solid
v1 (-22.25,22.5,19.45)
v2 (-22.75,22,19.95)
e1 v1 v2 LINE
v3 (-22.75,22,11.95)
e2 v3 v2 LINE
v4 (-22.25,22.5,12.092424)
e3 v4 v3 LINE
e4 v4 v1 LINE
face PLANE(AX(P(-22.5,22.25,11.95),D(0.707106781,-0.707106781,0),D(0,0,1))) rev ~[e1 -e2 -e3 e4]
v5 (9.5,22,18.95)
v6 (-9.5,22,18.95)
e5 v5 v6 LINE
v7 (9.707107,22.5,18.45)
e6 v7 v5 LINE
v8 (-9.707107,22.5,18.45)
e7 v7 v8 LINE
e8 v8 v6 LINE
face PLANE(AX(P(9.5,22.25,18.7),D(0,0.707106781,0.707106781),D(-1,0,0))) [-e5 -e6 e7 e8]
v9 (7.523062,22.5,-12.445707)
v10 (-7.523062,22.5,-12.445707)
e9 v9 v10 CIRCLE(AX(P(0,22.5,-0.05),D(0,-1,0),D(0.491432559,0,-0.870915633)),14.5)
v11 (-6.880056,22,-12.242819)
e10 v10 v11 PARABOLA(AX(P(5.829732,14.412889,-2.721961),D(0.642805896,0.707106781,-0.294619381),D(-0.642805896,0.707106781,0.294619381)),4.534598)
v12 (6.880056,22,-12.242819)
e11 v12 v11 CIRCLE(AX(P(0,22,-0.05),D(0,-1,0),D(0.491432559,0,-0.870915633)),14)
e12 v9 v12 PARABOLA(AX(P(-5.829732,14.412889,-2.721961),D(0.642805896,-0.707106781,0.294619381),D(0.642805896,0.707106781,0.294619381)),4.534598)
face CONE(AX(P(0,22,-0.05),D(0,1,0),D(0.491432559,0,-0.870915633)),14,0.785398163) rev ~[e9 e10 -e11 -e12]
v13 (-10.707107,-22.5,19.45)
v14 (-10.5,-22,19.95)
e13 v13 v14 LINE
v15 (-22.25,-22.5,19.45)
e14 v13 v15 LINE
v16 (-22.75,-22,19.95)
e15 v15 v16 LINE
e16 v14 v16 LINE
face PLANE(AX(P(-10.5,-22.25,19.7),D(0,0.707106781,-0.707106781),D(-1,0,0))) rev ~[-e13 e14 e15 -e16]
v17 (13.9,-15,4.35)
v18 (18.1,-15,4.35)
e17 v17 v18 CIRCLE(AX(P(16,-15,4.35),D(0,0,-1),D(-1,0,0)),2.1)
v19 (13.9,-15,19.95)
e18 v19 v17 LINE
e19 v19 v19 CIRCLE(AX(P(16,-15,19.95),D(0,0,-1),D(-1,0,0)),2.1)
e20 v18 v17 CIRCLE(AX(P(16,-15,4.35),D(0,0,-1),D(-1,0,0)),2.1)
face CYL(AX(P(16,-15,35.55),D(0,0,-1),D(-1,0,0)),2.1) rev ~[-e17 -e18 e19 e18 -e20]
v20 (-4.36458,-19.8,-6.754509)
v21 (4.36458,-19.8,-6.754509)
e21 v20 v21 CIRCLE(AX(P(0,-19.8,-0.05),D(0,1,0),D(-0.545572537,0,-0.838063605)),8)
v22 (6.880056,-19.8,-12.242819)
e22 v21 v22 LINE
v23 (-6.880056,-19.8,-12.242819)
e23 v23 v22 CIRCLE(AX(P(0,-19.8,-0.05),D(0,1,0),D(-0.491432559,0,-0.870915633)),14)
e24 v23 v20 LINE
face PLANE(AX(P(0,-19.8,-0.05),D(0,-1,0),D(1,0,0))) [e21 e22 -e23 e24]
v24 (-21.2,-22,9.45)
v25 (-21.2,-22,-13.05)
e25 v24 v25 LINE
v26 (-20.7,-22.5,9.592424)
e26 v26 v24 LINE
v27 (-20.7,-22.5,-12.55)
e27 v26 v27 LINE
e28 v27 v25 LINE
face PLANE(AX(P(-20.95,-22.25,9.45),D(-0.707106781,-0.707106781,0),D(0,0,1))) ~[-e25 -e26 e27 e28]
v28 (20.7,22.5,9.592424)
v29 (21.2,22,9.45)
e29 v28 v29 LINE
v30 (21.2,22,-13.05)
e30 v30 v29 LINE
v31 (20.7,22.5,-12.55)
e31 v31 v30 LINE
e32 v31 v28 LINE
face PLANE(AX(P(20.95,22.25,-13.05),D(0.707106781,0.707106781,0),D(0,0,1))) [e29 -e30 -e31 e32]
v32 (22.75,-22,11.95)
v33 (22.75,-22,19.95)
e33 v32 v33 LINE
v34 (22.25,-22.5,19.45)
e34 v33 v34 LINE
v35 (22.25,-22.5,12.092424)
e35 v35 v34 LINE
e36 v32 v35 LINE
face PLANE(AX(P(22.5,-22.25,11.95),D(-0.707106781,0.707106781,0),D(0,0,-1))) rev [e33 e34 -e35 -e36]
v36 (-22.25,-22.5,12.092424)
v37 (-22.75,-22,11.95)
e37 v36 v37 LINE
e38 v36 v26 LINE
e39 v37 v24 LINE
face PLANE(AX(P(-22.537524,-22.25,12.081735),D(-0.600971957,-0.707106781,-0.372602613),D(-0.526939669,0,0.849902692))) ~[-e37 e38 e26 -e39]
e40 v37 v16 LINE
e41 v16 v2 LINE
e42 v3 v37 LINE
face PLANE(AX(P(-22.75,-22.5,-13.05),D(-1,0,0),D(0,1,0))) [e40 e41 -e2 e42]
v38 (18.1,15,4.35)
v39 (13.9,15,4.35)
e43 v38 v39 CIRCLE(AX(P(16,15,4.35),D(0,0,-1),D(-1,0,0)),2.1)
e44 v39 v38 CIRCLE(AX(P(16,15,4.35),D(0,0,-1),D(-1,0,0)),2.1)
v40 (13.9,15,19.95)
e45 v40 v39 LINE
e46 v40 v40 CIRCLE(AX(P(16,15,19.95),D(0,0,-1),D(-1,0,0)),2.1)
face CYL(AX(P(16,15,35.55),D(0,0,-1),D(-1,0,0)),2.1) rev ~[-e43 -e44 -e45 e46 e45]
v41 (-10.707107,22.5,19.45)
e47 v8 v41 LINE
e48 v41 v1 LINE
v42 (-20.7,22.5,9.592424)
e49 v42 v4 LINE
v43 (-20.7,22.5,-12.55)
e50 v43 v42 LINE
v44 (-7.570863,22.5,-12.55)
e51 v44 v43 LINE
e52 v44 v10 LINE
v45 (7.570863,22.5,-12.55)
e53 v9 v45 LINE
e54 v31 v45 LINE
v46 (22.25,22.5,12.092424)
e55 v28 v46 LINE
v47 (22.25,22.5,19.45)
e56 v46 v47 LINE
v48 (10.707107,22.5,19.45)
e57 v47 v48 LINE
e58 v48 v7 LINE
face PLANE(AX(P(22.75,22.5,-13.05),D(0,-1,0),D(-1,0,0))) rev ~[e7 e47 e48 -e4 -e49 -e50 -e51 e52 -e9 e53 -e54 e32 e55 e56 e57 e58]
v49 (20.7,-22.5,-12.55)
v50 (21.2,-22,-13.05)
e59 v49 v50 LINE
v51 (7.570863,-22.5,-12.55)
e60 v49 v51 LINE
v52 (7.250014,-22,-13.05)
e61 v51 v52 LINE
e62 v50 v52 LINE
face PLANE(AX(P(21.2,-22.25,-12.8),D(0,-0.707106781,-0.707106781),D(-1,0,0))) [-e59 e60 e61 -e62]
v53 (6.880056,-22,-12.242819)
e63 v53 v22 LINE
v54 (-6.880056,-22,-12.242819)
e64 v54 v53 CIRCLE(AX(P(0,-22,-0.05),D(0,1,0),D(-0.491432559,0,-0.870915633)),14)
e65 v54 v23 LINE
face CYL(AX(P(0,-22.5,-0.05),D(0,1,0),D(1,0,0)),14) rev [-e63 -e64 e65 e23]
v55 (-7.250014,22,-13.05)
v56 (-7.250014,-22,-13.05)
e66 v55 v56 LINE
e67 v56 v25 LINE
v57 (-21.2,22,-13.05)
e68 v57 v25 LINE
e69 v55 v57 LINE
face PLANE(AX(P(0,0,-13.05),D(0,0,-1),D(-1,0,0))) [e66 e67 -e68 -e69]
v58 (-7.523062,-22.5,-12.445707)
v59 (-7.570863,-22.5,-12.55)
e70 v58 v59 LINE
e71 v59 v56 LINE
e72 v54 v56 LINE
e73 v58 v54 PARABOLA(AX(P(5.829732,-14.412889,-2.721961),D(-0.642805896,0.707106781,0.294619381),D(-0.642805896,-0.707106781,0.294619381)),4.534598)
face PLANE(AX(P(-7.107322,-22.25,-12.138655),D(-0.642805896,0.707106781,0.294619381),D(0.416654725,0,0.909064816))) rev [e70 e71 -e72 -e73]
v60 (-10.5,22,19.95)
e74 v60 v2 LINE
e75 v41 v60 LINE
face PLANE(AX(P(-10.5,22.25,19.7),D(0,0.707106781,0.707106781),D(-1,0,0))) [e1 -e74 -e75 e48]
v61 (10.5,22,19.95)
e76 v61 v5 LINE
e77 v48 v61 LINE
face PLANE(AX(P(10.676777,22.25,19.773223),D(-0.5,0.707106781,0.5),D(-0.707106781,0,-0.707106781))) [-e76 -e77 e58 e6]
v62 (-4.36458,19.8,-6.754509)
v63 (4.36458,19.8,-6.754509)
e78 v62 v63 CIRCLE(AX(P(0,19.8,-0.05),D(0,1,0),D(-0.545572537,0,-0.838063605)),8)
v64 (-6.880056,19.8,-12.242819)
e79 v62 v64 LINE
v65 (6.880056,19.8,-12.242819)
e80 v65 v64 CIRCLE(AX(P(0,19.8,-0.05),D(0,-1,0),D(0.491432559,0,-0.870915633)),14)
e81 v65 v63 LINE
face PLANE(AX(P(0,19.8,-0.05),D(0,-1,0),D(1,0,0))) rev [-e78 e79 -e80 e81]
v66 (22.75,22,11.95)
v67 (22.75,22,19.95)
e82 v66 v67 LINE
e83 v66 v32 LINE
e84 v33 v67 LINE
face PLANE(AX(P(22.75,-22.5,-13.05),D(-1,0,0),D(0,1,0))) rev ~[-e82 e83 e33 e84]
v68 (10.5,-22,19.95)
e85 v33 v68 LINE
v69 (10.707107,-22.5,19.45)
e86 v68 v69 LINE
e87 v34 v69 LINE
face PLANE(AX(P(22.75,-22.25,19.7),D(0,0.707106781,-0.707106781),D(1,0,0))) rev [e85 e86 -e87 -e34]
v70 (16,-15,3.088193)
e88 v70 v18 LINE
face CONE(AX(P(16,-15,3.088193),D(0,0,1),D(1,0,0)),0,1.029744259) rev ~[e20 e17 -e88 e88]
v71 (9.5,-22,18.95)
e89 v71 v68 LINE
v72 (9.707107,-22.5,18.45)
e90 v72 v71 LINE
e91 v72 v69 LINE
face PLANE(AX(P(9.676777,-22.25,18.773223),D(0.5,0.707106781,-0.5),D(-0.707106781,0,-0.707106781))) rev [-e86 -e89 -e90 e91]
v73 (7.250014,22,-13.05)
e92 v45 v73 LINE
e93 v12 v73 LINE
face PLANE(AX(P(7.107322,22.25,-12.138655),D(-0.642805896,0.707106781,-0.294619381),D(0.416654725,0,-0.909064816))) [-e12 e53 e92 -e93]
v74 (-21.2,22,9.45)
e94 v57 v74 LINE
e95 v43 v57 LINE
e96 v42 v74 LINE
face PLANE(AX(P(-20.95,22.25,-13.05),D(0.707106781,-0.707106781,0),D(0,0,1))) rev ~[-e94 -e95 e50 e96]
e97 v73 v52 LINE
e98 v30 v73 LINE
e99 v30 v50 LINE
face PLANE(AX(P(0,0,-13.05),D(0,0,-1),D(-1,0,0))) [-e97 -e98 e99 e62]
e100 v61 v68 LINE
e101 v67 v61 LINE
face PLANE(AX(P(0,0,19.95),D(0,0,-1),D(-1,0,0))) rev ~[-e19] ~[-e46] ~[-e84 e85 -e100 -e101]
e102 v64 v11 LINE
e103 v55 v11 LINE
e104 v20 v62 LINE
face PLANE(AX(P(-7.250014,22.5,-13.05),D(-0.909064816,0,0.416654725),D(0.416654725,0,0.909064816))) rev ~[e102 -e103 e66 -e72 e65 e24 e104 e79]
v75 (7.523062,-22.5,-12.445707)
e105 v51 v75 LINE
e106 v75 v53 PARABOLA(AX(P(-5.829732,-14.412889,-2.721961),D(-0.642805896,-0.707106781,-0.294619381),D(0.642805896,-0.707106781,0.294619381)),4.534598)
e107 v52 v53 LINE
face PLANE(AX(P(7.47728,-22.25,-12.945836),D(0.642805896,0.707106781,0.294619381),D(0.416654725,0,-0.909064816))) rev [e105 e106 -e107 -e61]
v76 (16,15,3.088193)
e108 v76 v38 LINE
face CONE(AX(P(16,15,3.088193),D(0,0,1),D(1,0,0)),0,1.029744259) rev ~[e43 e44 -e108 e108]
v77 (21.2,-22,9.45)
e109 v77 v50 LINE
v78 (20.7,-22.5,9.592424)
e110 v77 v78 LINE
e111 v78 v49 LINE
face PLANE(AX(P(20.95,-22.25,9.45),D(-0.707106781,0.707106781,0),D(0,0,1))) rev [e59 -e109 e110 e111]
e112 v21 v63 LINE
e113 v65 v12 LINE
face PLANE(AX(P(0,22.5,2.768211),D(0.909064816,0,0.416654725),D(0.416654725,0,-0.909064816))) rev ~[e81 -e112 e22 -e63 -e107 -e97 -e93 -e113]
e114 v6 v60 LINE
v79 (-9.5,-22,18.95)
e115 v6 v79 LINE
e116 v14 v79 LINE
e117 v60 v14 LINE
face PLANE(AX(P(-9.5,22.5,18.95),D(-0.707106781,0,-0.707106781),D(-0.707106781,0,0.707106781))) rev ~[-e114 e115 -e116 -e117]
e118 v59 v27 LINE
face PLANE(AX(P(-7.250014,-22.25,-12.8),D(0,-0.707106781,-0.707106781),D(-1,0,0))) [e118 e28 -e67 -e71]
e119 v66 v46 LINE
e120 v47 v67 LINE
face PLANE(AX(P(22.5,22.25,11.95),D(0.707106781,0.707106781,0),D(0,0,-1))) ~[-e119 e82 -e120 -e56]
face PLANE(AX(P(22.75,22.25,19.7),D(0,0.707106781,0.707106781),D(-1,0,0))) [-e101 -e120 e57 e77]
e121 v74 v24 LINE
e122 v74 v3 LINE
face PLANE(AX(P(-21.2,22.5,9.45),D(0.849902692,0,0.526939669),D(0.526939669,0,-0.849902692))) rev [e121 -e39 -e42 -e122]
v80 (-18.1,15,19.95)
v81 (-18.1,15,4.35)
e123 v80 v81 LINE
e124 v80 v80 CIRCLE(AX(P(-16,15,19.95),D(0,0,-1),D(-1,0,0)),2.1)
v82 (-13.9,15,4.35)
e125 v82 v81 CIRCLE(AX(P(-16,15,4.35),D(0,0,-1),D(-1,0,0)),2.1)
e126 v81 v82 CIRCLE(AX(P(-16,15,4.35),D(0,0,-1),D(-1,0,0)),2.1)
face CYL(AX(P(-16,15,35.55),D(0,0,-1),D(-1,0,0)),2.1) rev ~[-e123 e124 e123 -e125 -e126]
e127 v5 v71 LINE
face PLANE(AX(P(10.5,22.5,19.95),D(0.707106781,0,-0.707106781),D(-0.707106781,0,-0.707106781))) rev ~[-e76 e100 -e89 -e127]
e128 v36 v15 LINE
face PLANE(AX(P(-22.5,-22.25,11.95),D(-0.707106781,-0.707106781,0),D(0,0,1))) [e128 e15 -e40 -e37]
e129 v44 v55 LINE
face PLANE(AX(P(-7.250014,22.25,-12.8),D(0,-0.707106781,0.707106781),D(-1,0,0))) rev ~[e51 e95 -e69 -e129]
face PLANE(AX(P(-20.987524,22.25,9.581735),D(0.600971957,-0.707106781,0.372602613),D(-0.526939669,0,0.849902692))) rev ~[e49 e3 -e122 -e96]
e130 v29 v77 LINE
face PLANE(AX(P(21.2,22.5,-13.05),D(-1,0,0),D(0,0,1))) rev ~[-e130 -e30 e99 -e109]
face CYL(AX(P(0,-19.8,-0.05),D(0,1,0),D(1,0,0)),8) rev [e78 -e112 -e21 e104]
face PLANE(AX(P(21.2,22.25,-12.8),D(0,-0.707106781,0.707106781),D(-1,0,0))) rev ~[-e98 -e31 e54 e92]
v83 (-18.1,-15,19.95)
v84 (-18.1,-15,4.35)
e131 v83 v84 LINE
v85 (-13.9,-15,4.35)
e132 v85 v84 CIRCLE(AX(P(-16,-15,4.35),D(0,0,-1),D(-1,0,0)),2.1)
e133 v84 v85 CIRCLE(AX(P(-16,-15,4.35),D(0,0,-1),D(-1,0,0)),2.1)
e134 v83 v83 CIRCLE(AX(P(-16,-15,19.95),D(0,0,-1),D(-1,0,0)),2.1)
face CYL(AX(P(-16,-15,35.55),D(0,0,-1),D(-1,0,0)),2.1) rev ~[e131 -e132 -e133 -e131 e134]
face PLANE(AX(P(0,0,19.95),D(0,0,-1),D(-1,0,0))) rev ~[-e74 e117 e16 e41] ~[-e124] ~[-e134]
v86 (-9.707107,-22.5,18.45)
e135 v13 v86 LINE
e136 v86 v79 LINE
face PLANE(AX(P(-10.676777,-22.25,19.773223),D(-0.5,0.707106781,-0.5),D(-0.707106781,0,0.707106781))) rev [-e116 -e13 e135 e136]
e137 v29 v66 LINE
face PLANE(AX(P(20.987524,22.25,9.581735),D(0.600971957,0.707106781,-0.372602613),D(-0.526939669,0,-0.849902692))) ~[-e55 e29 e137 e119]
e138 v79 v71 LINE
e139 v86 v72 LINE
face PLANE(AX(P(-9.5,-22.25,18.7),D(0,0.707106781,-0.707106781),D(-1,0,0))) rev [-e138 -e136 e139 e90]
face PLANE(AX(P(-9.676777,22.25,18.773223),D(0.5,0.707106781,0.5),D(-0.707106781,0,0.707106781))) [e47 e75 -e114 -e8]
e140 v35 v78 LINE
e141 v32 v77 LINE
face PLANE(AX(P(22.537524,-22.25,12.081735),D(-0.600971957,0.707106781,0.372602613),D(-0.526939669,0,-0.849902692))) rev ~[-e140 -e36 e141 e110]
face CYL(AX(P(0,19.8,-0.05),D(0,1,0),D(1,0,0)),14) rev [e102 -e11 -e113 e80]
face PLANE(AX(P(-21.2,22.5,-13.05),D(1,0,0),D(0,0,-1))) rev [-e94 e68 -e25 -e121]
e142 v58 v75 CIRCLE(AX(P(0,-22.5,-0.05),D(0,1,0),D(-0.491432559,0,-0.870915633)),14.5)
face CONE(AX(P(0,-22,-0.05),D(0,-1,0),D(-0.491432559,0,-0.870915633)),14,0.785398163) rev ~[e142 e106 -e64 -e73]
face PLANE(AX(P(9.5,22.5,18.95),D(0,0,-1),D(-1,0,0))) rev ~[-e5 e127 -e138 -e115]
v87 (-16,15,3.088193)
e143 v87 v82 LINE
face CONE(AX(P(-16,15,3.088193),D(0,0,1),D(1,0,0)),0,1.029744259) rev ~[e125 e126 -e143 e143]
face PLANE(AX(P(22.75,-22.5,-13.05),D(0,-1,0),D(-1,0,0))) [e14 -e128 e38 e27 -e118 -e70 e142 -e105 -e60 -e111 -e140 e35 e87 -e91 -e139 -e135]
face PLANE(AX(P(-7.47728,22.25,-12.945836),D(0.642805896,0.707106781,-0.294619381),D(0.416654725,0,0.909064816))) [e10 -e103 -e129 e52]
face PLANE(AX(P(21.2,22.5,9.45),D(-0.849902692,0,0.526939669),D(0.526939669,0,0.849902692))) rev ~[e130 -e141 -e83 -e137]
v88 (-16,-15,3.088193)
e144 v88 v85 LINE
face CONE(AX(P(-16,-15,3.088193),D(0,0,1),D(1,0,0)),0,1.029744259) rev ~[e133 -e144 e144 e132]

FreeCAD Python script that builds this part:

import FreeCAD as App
import Part
import Sketcher

V = App.Vector
Q = App.Units.Quantity


def edges_at(feature, points):
    """Names of the edges that pass closest to the given points."""
    edges = feature.Shape.Edges
    near = lambda p: min(range(len(edges)), key=lambda i: edges[i].distToShape(Part.Vertex(*p))[0])
    return sorted({f"Edge{near(p) + 1}" for p in points})


def add_polygon(sketch, points):
    """Adds a closed chain of lines whose ends are joined by coincident constraints."""
    first, n = sketch.GeometryCount, len(points)
    for a, b in zip(points, points[1:] + points[:1]):
        sketch.addGeometry(Part.LineSegment(App.Vector(*a, 0), App.Vector(*b, 0)), False)
    for i in range(n):
        sketch.addConstraint(Sketcher.Constraint("Coincident", first + i, 2, first + (i + 1) % n, 1))

doc = App.newDocument("Part")
body = doc.addObject("PartDesign::Body", "Body")

# Sketch on XY plane
sketch1 = body.newObject("Sketcher::SketchObject", "Sketch")
sketch1.AttachmentSupport = (doc.getObject("XY_Plane"), [""])
sketch1.MapMode = "FlatFace"
sketch1.AttachmentOffset = App.Placement(V(0, 0, -13.05), App.Rotation())
add_polygon(sketch1, [(23, 22), (23, -22), (-23, -22), (-23, 22)])  # lines 0-3
sketch1.addConstraint([
    Sketcher.Constraint("Vertical", 0),
    Sketcher.Constraint("Horizontal", 1),
    Sketcher.Constraint("Vertical", 2),
    Sketcher.Constraint("Horizontal", 3),
    Sketcher.Constraint("Symmetric", 0, 2, 2, 2, -1, 1),
    Sketcher.Constraint("DistanceY", 0, 2, 0, 1, Q("45 mm")),
    Sketcher.Constraint("DistanceX", 1, 2, 1, 1, Q("45.5 mm")),
])
pad1 = body.newObject("PartDesign::Pad", "Pad")
pad1.Profile = sketch1
pad1.Length = 33

# Sketch on XZ plane
sketch2 = body.newObject("Sketcher::SketchObject", "Sketch001")
sketch2.AttachmentSupport = (doc.getObject("XZ_Plane"), [""])
sketch2.MapMode = "FlatFace"
sketch2.AttachmentOffset = App.Placement(V(0, 0, -22.5), App.Rotation())
add_polygon(sketch2, [(21.2, -13.1), (21.2, 9.4), (22.8, 11.9), (22.8, -13.1)])  # lines 0-3
sketch2.addConstraint([
    Sketcher.Constraint("Vertical", 0),
    Sketcher.Constraint("Vertical", 2),
    Sketcher.Constraint("Horizontal", 3),
    Sketcher.Constraint("DistanceY", 2, 2, 2, 1, Q("25 mm")),
    Sketcher.Constraint("DistanceY", 0, 1, 0, 2, Q("22.5 mm")),
    Sketcher.Constraint("DistanceX", 3, 2, 3, 1, Q("1.55 mm")),
    Sketcher.Constraint("DistanceX", -1, 1, 0, 2, Q("21.2 mm")),
    Sketcher.Constraint("DistanceY", -1, 1, 0, 2, Q("9.45 mm")),
])
pocket1 = body.newObject("PartDesign::Pocket", "Pocket")
pocket1.Profile = sketch2
pocket1.Type = "ThroughAll"
pocket1.Reversed = True
doc.recompute()

mirrored = body.newObject("PartDesign::Mirrored", "Mirrored")
mirrored.Originals = [pocket1]
mirrored.MirrorPlane = (doc.getObject("YZ_Plane"), [""])
body.Tip = mirrored

# Sketch on XZ plane
sketch3 = body.newObject("Sketcher::SketchObject", "Sketch002")
sketch3.AttachmentSupport = (doc.getObject("XZ_Plane"), [""])
sketch3.MapMode = "FlatFace"
sketch3.AttachmentOffset = App.Placement(V(0, 0, -22.5), App.Rotation())
add_polygon(sketch3, [(10.5, 19.9), (9.5, 18.9), (-9.5, 18.9), (-10.5, 19.9)])  # lines 0-3
sketch3.addConstraint([
    Sketcher.Constraint("Horizontal", 1),
    Sketcher.Constraint("Horizontal", 3),
    Sketcher.Constraint("Perpendicular", 0, 2),
    Sketcher.Constraint("Equal", 0, 2),
    Sketcher.Constraint("DistanceX", 1, 2, 1, 1, Q("19 mm")),
    Sketcher.Constraint("DistanceX", 3, 1, 3, 2, Q("21 mm")),
    Sketcher.Constraint("DistanceX", -1, 1, 0, 2, Q("9.5 mm")),
    Sketcher.Constraint("DistanceY", -1, 1, 0, 2, Q("18.95 mm")),
])
pocket2 = body.newObject("PartDesign::Pocket", "Pocket001")
pocket2.Profile = sketch3
pocket2.Type = "ThroughAll"
pocket2.Reversed = True

# Sketch on XZ plane
sketch4 = body.newObject("Sketcher::SketchObject", "Sketch003")
sketch4.AttachmentSupport = (doc.getObject("XZ_Plane"), [""])
sketch4.MapMode = "FlatFace"
sketch4.AttachmentOffset = App.Placement(V(0, 0, -22.5), App.Rotation())
add_polygon(sketch4, [(7, -13), (-7, -13), (0, 3)])  # lines 0-2
sketch4.addConstraint([
    Sketcher.Constraint("Horizontal", 0),
    Sketcher.Constraint("PointOnObject", 1, 2, -2),
    Sketcher.Constraint("Equal", 1, 2),
    Sketcher.Constraint("DistanceY", 0, 2, -1, 1, Q("13.05 mm")),
    Sketcher.Constraint("Distance", 1, Q("17.400532 mm")),
    Sketcher.Constraint("DistanceX", 0, 2, 0, 1, Q("14.500028 mm")),
])
pocket3 = body.newObject("PartDesign::Pocket", "Pocket002")
pocket3.Profile = sketch4
pocket3.Type = "ThroughAll"
pocket3.Reversed = True

# Sketch on XY plane
sketch5 = body.newObject("Sketcher::SketchObject", "Sketch004")
sketch5.AttachmentSupport = (doc.getObject("XY_Plane"), [""])
sketch5.MapMode = "FlatFace"
sketch5.AttachmentOffset = App.Placement(V(0, 0, -0.05), App.Rotation())
add_polygon(sketch5, [(14, 22.5), (0, 22.5), (0, -22.5), (14, -22.5), (14, -19.8), (8, -19.8), (8, 19.8), (14, 19.8)])  # lines 0-7
sketch5.addConstraint([
    Sketcher.Constraint("Horizontal", 0),
    Sketcher.Constraint("Vertical", 1),
    Sketcher.Constraint("Horizontal", 2),
    Sketcher.Constraint("Vertical", 3),
    Sketcher.Constraint("Horizontal", 4),
    Sketcher.Constraint("Vertical", 5),
    Sketcher.Constraint("Horizontal", 6),
    Sketcher.Constraint("Vertical", 7),
    Sketcher.Constraint("Symmetric", 0, 2, 1, 2, -1, 1),
    Sketcher.Constraint("Symmetric", 3, 2, 6, 2, -1),
    Sketcher.Constraint("DistanceX", 0, 2, 0, 1, Q("14 mm")),
    Sketcher.Constraint("DistanceX", 4, 2, 4, 1, Q("6 mm")),
    Sketcher.Constraint("DistanceY", 1, 2, 1, 1, Q("45 mm")),
    Sketcher.Constraint("DistanceY", 3, 1, 3, 2, Q("2.7 mm")),
])
groove = body.newObject("PartDesign::Groove", "Groove")
groove.Profile = sketch5
groove.ReferenceAxis = (sketch5, ["V_Axis"])
groove.Angle = 360

# Sketch on XY plane
sketch6 = body.newObject("Sketcher::SketchObject", "Sketch005")
sketch6.AttachmentSupport = (doc.getObject("XY_Plane"), [""])
sketch6.MapMode = "FlatFace"
sketch6.AttachmentOffset = App.Placement(V(0, 0, 19.95), App.Rotation())
sketch6.addGeometry([
    Part.Circle(V(-16, -15, 0), V(0, 0, 1), 2.1),
    Part.Circle(V(16, 15, 0), V(0, 0, 1), 2.1),
    Part.Circle(V(16, -15, 0), V(0, 0, 1), 2.1),
    Part.Circle(V(-16, 15, 0), V(0, 0, 1), 2.1),
], False)
sketch6.addConstraint([
    Sketcher.Constraint("Equal", 0, 1),
    Sketcher.Constraint("Equal", 1, 2),
    Sketcher.Constraint("Equal", 2, 3),
    Sketcher.Constraint("Symmetric", 0, 3, 1, 3, -1, 1),
    Sketcher.Constraint("Symmetric", 2, 3, 3, 3, -1, 1),
    Sketcher.Constraint("Symmetric", 0, 3, 2, 3, -2),
    Sketcher.Constraint("Diameter", 0, Q("4.2 mm")),
    Sketcher.Constraint("DistanceX", 0, 3, -1, 1, Q("16 mm")),
    Sketcher.Constraint("DistanceY", 0, 3, -1, 1, Q("15 mm")),
])
doc.recompute()
hole = body.newObject("PartDesign::Hole", "Hole")
hole.Profile = sketch6
hole.ThreadType = "None"
hole.Diameter = 4.2
hole.DepthType = "Dimension"
hole.Depth = 15.6
hole.DrillPoint = "Angled"
hole.DrillPointAngle = 118
doc.recompute()

chamfer = body.newObject("PartDesign::Chamfer", "Chamfer")
chamfer.Base = (hole, edges_at(hole, [
    (14.225, -22.5, -13.05),
    (16.625, -22.5, 19.95),
    (21.975, -22.5, 10.7),
    (21.2, -22.5, -1.8),
    (21.2, 22.5, -1.8),
    (21.975, 22.5, 10.7),
    (-14.225, 22.5, -13.05),
    (-21.2, 22.5, -1.8),
    (-21.975, 22.5, 10.7),
    (-21.2, -22.5, -1.8),
    (-21.975, -22.5, 10.7),
    (-16.625, -22.5, 19.95),
    (16.625, 22.5, 19.95),
    (-10, -22.5, 19.45),
    (0, -22.5, 18.95),
    (10, -22.5, 19.45),
    (10, 22.5, 19.45),
    (0, 22.5, 18.95),
    (-10, 22.5, 19.45),
    (-14.225, -22.5, -13.05),
    (14.225, 22.5, -13.05),
    (-7.065, -22.5, -12.646),
    (-7.065, 22.5, -12.646),
    (7.065, 22.5, -12.646),
    (7.065, -22.5, -12.646),
    (0, 22.5, 13.95),
    (0, -22.5, 13.95),
    (-22.75, -22.5, 15.95),
    (22.75, -22.5, 15.95),
    (22.75, 22.5, 15.95),
    (-22.75, 22.5, 15.95),
    (-16.625, 22.5, 19.95),
]))
chamfer.Size = 0.5

doc.recompute()
